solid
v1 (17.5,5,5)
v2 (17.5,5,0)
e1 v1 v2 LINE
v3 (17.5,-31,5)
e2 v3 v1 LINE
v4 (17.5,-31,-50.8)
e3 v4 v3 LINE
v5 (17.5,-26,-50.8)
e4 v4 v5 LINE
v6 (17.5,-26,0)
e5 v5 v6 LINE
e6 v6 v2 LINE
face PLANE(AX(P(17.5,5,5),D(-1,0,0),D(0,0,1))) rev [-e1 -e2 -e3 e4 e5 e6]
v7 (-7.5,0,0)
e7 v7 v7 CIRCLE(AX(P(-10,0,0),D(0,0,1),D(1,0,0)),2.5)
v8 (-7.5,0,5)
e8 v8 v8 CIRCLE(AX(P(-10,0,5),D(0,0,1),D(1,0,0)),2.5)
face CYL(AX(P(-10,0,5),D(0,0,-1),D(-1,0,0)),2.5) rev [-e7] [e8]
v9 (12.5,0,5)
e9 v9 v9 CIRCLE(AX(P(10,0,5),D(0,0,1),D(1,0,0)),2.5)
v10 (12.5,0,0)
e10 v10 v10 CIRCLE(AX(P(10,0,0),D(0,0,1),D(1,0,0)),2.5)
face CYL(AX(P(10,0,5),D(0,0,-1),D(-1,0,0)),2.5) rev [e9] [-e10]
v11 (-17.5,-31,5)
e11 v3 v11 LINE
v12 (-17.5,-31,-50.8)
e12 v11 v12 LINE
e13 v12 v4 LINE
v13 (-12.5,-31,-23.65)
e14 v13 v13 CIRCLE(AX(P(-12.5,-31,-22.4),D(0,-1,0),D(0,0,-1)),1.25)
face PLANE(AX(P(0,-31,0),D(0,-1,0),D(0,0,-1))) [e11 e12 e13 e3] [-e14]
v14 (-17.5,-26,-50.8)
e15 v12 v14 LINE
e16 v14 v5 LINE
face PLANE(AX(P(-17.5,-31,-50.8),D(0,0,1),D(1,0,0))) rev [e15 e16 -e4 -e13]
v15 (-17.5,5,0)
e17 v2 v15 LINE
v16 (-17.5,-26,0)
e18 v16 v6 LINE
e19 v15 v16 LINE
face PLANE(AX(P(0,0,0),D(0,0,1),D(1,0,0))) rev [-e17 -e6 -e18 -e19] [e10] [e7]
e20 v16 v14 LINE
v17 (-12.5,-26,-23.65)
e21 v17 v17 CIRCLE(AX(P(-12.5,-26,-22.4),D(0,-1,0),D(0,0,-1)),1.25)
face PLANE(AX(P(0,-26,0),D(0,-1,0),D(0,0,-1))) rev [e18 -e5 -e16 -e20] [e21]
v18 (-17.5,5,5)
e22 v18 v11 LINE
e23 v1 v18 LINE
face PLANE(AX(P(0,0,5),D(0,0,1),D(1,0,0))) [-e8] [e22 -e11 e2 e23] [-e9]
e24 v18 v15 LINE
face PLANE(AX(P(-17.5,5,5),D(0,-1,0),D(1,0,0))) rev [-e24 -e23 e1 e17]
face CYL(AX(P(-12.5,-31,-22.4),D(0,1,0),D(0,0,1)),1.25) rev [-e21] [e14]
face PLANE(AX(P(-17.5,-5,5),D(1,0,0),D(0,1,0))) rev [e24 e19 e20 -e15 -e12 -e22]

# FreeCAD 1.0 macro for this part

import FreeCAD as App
import Part
import Sketcher
from FreeCAD import Vector
Q = App.Units.Quantity


def add_polygon(sketch, points):
    """Adds a closed chain of lines whose ends are joined by coincident constraints."""
    first, n = sketch.GeometryCount, len(points)
    for a, b in zip(points, points[1:] + points[:1]):
        sketch.addGeometry(Part.LineSegment(App.Vector(*a, 0), App.Vector(*b, 0)), False)
    for i in range(n):
        sketch.addConstraint(Sketcher.Constraint("Coincident", first + i, 2, first + (i + 1) % n, 1))

doc = App.newDocument("Part")
params = doc.addObject("Spreadsheet::Sheet", "Params")
for row, (alias, value) in enumerate([
    ("sketch1_diameter", "5 mm"),
    ("sketch1_width", "35 mm"),
    ("sketch1_height", "31 mm"),
    ("pad1_length", "5 mm"),
    ("sketch2_diameter", "2.5 mm"),
    ("sketch2_width", "35 mm"),
    ("sketch2_height", "55.8 mm"),
    ("pad2_length", "5 mm"),
], start=1):
    params.set(f"A{row}", alias)
    params.set(f"B{row}", "=" + value)
    params.setAlias(f"B{row}", alias)

body = doc.addObject("PartDesign::Body", "Body")

# Sketch on XY plane
sketch1 = body.newObject("Sketcher::SketchObject", "Sketch")
sketch1.AttachmentSupport = (doc.getObject("XY_Plane"), [""])
sketch1.MapMode = "FlatFace"
add_polygon(sketch1, [(17.5, 5), (-17.5, 5), (-17.5, -26), (17.5, -26)])  # lines 0-3
sketch1.addGeometry(Part.Circle(Vector(10, 0, 0), Vector(0, 0, 1), 2.5), False)  # 4
sketch1.addGeometry(Part.Circle(Vector(-10, 0, 0), Vector(0, 0, 1), 2.5), False)  # 5
sketch1.addConstraint([
    Sketcher.Constraint("Horizontal", 0),
    Sketcher.Constraint("Vertical", 1),
    Sketcher.Constraint("Horizontal", 2),
    Sketcher.Constraint("Vertical", 3),
    Sketcher.Constraint("Equal", 4, 5),
    Sketcher.Constraint("Symmetric", 4, 3, 5, 3, -1, 1),
    Sketcher.Constraint("PointOnObject", 4, 3, -1),
    Sketcher.Constraint("Diameter", 4, Q("5 mm")),
    Sketcher.Constraint("DistanceX", 0, 2, 0, 1, Q("35 mm")),
    Sketcher.Constraint("DistanceY", 1, 2, 1, 1, Q("31 mm")),
    Sketcher.Constraint("DistanceX", -1, 1, 4, 3, Q("10 mm")),
    Sketcher.Constraint("DistanceY", -1, 1, 0, 2, Q("5 mm")),
    Sketcher.Constraint("DistanceX", 0, 2, -1, 1, Q("17.5 mm")),
])
sketch1.setExpression("Constraints[11]", "Params.sketch1_diameter")
sketch1.setExpression("Constraints[12]", "Params.sketch1_width")
sketch1.setExpression("Constraints[13]", "Params.sketch1_height")
pad1 = body.newObject("PartDesign::Pad", "Pad")
pad1.Profile = sketch1
pad1.setExpression("Length", "Params.pad1_length")

# Sketch on XZ plane
sketch2 = body.newObject("Sketcher::SketchObject", "Sketch001")
sketch2.AttachmentSupport = (doc.getObject("XZ_Plane"), [""])
sketch2.MapMode = "FlatFace"
sketch2.AttachmentOffset = App.Placement(Vector(0, 0, 26), App.Rotation())
add_polygon(sketch2, [(-17.5, 5), (-17.5, -50.8), (17.5, -50.8), (17.5, 5)])  # lines 0-3
sketch2.addGeometry(Part.Circle(Vector(-12.5, -22.4, 0), Vector(0, 0, 1), 1.25), False)  # 4
sketch2.addConstraint([
    Sketcher.Constraint("Vertical", 0),
    Sketcher.Constraint("Horizontal", 1),
    Sketcher.Constraint("Vertical", 2),
    Sketcher.Constraint("Horizontal", 3),
    Sketcher.Constraint("Diameter", 4, Q("2.5 mm")),
    Sketcher.Constraint("DistanceX", 1, 1, 1, 2, Q("35 mm")),
    Sketcher.Constraint("DistanceY", 0, 2, 0, 1, Q("55.8 mm")),
    Sketcher.Constraint("DistanceY", -1, 1, 2, 2, Q("5 mm")),
    Sketcher.Constraint("DistanceX", 0, 2, 4, 3, Q("5 mm")),
    Sketcher.Constraint("DistanceX", 4, 3, -1, 1, Q("12.5 mm")),
    Sketcher.Constraint("DistanceY", 4, 3, -1, 1, Q("22.4 mm")),
])
sketch2.setExpression("Constraints[8]", "Params.sketch2_diameter")
sketch2.setExpression("Constraints[9]", "Params.sketch2_width")
sketch2.setExpression("Constraints[10]", "Params.sketch2_height")
pad2 = body.newObject("PartDesign::Pad", "Pad001")
pad2.Profile = sketch2
pad2.setExpression("Length", "Params.pad2_length")

doc.recompute()
